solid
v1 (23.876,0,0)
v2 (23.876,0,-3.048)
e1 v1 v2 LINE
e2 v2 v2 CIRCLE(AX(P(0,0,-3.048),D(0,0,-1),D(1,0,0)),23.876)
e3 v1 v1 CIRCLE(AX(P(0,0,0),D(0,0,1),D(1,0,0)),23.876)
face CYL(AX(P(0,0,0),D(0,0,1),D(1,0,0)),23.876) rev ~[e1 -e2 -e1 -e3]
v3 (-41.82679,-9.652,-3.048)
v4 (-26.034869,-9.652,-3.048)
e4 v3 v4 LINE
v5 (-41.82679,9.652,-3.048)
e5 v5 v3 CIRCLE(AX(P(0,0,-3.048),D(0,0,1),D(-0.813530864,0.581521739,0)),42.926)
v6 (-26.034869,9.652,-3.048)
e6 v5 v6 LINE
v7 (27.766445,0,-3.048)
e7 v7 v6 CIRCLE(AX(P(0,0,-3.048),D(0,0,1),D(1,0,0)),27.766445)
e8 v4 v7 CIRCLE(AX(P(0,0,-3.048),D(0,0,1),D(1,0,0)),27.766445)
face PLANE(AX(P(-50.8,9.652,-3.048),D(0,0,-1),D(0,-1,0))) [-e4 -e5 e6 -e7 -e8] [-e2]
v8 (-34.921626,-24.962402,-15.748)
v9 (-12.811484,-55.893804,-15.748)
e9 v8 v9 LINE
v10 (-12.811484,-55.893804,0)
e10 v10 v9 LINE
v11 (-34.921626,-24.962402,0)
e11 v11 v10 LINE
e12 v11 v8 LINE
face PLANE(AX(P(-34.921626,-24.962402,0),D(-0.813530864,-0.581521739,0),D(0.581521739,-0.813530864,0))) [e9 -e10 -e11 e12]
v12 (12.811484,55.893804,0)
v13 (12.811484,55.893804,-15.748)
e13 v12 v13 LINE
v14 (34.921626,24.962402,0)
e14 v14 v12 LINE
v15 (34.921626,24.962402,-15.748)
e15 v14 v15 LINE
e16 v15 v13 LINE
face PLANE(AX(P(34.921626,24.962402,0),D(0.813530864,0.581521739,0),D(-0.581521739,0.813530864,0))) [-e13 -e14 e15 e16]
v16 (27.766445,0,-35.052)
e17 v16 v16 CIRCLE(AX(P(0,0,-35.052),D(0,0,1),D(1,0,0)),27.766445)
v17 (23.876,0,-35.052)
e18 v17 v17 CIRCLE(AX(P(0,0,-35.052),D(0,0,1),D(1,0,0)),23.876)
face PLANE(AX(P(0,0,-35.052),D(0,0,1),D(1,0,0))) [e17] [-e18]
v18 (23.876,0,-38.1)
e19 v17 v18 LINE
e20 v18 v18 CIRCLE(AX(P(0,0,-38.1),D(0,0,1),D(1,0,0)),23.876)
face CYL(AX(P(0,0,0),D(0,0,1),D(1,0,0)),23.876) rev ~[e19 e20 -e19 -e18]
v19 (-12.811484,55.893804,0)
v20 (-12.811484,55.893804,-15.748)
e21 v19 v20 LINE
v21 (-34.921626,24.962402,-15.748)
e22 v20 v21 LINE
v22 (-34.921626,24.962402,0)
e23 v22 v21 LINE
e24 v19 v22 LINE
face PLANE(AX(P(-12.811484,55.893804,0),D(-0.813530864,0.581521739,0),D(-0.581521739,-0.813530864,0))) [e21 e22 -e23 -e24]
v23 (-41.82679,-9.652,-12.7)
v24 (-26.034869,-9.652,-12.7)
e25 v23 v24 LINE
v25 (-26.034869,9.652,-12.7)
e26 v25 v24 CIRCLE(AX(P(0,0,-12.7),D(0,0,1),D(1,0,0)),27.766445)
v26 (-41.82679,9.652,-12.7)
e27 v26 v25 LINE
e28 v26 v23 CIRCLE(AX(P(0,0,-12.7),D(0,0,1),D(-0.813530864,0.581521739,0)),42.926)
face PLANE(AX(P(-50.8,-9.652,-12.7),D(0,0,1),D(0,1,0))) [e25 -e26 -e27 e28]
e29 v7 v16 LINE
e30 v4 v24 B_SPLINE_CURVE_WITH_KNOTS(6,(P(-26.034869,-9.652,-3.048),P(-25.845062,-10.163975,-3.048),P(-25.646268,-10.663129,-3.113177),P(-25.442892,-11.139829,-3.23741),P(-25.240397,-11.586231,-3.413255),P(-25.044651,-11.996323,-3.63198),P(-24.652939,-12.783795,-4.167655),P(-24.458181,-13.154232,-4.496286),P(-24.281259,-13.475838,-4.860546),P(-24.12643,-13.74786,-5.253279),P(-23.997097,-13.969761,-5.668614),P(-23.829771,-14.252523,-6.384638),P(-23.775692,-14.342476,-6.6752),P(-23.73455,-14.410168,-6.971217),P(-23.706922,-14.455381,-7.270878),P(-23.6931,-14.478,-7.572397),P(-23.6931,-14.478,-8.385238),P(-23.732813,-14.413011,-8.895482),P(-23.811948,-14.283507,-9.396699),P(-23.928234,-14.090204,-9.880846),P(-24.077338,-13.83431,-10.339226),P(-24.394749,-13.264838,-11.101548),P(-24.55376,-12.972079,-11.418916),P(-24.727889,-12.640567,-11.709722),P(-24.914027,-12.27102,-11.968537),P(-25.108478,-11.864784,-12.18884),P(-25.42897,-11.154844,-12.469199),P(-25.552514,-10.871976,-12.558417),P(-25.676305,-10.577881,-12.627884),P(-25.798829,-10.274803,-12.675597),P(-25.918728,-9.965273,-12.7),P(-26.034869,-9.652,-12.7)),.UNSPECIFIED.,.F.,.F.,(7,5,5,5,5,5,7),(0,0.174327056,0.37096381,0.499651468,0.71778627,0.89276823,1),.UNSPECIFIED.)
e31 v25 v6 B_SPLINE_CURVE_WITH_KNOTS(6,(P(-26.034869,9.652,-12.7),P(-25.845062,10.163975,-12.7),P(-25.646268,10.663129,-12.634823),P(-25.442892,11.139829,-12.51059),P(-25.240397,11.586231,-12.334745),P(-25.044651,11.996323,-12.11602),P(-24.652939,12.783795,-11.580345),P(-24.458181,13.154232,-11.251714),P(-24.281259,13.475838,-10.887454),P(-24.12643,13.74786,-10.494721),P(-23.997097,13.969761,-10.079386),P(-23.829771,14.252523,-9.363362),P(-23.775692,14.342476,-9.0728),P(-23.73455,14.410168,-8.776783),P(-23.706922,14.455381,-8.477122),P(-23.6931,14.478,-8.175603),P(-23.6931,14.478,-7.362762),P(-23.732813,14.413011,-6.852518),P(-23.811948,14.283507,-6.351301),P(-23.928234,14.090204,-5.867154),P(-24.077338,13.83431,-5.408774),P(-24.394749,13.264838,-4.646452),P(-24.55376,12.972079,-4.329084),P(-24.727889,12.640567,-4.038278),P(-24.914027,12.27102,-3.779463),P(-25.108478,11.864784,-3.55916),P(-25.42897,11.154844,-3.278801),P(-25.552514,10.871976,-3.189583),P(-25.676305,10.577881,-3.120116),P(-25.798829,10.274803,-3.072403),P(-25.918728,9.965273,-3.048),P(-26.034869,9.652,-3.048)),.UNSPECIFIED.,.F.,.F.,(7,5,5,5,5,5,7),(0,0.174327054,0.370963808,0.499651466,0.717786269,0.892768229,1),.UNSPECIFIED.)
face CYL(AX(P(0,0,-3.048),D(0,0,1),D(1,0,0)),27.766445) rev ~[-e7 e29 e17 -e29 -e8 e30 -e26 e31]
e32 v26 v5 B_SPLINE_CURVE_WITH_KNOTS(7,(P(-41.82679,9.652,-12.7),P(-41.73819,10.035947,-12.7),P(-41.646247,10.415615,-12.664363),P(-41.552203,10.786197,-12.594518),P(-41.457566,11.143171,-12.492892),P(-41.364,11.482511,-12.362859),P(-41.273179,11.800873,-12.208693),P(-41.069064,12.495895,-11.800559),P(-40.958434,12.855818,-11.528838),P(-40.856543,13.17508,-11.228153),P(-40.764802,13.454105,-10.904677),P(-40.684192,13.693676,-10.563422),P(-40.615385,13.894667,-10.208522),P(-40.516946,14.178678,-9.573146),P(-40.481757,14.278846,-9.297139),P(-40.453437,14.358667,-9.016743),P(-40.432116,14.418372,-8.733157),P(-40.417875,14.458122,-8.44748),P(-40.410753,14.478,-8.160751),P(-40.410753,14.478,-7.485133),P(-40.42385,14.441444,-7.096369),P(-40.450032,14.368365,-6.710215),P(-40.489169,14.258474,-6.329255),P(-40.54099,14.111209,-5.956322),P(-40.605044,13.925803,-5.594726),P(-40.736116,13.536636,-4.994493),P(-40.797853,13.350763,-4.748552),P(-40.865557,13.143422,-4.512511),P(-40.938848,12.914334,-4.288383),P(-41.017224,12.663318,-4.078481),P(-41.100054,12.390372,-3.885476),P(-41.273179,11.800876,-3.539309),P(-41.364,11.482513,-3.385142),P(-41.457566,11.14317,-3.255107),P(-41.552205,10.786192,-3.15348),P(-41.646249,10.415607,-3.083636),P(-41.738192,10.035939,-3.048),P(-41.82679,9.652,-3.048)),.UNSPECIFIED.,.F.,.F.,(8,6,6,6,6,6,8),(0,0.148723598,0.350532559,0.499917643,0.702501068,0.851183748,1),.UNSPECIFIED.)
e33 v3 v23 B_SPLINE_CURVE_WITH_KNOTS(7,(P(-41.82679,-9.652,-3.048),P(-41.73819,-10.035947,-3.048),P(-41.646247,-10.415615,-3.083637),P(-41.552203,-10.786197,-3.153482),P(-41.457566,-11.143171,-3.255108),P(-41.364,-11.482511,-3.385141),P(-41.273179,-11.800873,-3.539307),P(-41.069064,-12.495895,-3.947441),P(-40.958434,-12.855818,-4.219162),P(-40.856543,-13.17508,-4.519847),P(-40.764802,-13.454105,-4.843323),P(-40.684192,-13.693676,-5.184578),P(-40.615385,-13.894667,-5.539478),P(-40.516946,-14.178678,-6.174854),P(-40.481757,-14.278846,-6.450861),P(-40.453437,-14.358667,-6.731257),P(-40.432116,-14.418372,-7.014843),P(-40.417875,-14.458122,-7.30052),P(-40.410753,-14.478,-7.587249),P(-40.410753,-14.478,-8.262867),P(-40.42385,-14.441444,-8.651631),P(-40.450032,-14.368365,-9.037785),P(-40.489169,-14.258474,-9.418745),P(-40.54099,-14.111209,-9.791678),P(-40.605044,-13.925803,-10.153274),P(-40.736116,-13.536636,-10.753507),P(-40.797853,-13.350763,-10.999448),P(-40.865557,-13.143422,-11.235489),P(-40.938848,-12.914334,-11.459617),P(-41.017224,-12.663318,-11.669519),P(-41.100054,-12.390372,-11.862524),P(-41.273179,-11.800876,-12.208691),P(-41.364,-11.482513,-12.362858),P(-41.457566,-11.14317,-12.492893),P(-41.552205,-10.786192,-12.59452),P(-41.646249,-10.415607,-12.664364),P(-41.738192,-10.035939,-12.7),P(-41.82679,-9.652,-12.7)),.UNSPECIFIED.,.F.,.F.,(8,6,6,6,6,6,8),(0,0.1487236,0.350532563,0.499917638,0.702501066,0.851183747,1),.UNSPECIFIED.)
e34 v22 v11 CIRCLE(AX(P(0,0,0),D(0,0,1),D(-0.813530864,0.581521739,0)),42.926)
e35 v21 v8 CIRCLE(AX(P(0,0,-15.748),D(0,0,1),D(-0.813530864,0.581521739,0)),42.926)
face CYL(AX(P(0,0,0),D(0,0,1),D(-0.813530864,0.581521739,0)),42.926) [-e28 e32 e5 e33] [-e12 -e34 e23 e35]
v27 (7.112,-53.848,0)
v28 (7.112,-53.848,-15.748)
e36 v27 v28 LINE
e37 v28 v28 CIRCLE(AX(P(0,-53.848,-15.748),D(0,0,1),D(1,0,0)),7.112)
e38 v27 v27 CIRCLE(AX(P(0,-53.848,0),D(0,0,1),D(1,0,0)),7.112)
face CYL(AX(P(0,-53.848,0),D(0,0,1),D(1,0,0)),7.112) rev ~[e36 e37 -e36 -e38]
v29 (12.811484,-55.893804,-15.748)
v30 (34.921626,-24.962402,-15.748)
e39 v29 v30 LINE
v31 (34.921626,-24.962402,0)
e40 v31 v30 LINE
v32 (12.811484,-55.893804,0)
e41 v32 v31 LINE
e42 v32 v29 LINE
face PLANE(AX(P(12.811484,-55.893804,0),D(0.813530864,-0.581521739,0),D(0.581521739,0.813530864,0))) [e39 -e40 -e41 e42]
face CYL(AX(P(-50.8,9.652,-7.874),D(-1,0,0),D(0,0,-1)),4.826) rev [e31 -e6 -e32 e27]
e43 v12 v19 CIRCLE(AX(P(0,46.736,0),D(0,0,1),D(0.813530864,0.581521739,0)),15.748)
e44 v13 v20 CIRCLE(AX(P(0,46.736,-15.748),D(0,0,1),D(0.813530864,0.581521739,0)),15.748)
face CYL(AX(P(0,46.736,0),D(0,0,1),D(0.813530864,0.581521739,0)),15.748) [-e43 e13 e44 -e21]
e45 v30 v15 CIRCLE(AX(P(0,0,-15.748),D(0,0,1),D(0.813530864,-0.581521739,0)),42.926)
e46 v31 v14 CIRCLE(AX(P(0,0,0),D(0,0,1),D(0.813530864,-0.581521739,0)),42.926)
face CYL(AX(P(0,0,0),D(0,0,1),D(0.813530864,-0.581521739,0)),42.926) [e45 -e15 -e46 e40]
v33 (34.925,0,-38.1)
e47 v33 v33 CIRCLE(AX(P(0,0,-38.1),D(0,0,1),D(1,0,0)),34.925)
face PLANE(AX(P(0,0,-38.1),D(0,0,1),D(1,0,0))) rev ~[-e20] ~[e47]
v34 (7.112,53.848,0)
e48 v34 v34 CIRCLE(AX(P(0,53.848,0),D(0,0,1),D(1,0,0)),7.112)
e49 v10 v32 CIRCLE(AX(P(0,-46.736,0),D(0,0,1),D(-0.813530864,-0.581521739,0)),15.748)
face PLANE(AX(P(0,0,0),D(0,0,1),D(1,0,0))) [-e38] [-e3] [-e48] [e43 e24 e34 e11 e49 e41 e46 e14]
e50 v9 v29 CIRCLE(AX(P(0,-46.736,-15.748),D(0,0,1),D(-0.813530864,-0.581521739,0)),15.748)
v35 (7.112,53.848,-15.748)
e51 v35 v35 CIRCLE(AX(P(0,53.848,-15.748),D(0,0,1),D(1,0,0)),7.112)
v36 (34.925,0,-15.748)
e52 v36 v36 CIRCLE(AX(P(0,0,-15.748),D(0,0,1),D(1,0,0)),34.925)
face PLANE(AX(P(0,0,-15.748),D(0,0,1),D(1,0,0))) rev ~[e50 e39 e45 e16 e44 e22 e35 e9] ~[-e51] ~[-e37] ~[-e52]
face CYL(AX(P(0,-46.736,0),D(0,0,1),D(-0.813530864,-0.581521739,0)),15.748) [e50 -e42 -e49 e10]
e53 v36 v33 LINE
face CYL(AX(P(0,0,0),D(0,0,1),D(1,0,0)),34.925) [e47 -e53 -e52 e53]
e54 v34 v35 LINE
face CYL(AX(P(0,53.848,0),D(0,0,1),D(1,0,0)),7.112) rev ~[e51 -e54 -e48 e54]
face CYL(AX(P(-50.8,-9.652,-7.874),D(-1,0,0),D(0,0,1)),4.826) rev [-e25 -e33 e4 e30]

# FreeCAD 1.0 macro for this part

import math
import FreeCAD as App
import Part
import Sketcher
Q = App.Units.Quantity

doc = App.newDocument("Part")
body = doc.addObject("PartDesign::Body", "Body")

sketch1 = body.newObject("Sketcher::SketchObject", "Sketch")
sketch1.AttachmentSupport = (doc.getObject("XY_Plane"), [""])
sketch1.MapMode = "FlatFace"
sketch1.addGeometry([
    Part.Circle(App.Vector(0, 0, 0), App.Vector(0, 0, 1), 35),
    Part.Circle(App.Vector(0, 0, 0), App.Vector(0, 0, 1), 24),
], False)
sketch1.addConstraint([
    Sketcher.Constraint("Coincident", 0, 3, -1, 1),
    Sketcher.Constraint("Coincident", 1, 3, -1, 1),
    Sketcher.Constraint("Diameter", 0, Q("2.75 in")),
    Sketcher.Constraint("Diameter", 1, Q("1.88 in")),
])
pad1 = body.newObject("PartDesign::Pad", "Pad")
pad1.Profile = sketch1
pad1.Length = Q("1.5 in")
pad1.Reversed = True

sketch2 = body.newObject("Sketcher::SketchObject", "Sketch001")
sketch2.AttachmentSupport = (doc.getObject("XY_Plane"), [""])
sketch2.MapMode = "FlatFace"
sketch2.AttachmentOffset = App.Placement(App.Vector(0, 0, -0.12 * 25.4), App.Rotation())
sketch2.addGeometry([
    Part.Circle(App.Vector(0, 0, 0), App.Vector(0, 0, 1), 28),
    Part.Circle(App.Vector(0, 0, 0), App.Vector(0, 0, 1), 24),
], False)
sketch2.addConstraint([
    Sketcher.Constraint("Coincident", 0, 3, -1, 1),
    Sketcher.Constraint("Coincident", 1, 3, -1, 1),
    Sketcher.Constraint("Diameter", 1, Q("1.88 in")),
    Sketcher.Constraint("Diameter", 0, Q("55.532891 mm")),
])
pocket1 = body.newObject("PartDesign::Pocket", "Pocket")
pocket1.Profile = sketch2
pocket1.Length = Q("1.26 in")

sketch3 = body.newObject("Sketcher::SketchObject", "Sketch002")
sketch3.AttachmentSupport = (doc.getObject("XY_Plane"), [""])
sketch3.MapMode = "FlatFace"
sketch3.addGeometry([
    Part.ArcOfCircle(Part.Circle(App.Vector(0, 47, 0), App.Vector(0, 0, 1), 16), math.radians(36), math.radians(144)),
    Part.LineSegment(App.Vector(-13, 56, 0), App.Vector(-35, 25, 0)),
    Part.ArcOfCircle(Part.Circle(App.Vector(0, 0, 0), App.Vector(0, 0, 1), 43), math.radians(144), math.radians(216)),
    Part.LineSegment(App.Vector(-35, -25, 0), App.Vector(-13, -56, 0)),
    Part.ArcOfCircle(Part.Circle(App.Vector(0, -47, 0), App.Vector(0, 0, 1), 16), math.radians(-144), math.radians(-36)),
    Part.LineSegment(App.Vector(13, -56, 0), App.Vector(35, -25, 0)),
    Part.ArcOfCircle(Part.Circle(App.Vector(0, 0, 0), App.Vector(0, 0, 1), 43), math.radians(-36), math.radians(36)),
    Part.LineSegment(App.Vector(35, 25, 0), App.Vector(13, 56, 0)),
    Part.Circle(App.Vector(0, -54, 0), App.Vector(0, 0, 1), 7),
    Part.Circle(App.Vector(0, 0, 0), App.Vector(0, 0, 1), 35),
    Part.Circle(App.Vector(0, 54, 0), App.Vector(0, 0, 1), 7),
], False)
sketch3.addConstraint([
    Sketcher.Constraint("Tangent", 0, 2, 1, 1),
    Sketcher.Constraint("Tangent", 1, 2, 2, 1),
    Sketcher.Constraint("Tangent", 2, 2, 3, 1),
    Sketcher.Constraint("Tangent", 3, 2, 4, 1),
    Sketcher.Constraint("Tangent", 4, 2, 5, 1),
    Sketcher.Constraint("Tangent", 5, 2, 6, 1),
    Sketcher.Constraint("Tangent", 6, 2, 7, 1),
    Sketcher.Constraint("Tangent", 7, 2, 0, 1),
    Sketcher.Constraint("Coincident", 2, 3, -1, 1),
    Sketcher.Constraint("Coincident", 6, 3, -1, 1),
    Sketcher.Constraint("Coincident", 9, 3, -1, 1),
    Sketcher.Constraint("Equal", 0, 4),
    Sketcher.Constraint("Equal", 2, 6),
    Sketcher.Constraint("Equal", 8, 10),
    Sketcher.Constraint("Symmetric", 0, 3, 4, 3, -1, 1),
    Sketcher.Constraint("Symmetric", 8, 3, 10, 3, -1, 1),
    Sketcher.Constraint("PointOnObject", 0, 3, -2),
    Sketcher.Constraint("PointOnObject", 8, 3, -2),
    Sketcher.Constraint("Diameter", 8, Q("0.56 in")),
    Sketcher.Constraint("Diameter", 9, Q("2.75 in")),
    Sketcher.Constraint("Radius", 0, Q("0.62 in")),
    Sketcher.Constraint("Radius", 2, Q("1.69 in")),
    Sketcher.Constraint("DistanceY", -1, 1, 0, 3, Q("1.84 in")),
    Sketcher.Constraint("DistanceY", 8, 3, -1, 1, Q("2.12 in")),
])
pad2 = body.newObject("PartDesign::Pad", "Pad001")
pad2.Profile = sketch3
pad2.Length = Q("0.62 in")
pad2.Reversed = True

sketch4 = body.newObject("Sketcher::SketchObject", "Sketch003")
sketch4.AttachmentSupport = (doc.getObject("YZ_Plane"), [""])
sketch4.MapMode = "FlatFace"
sketch4.AttachmentOffset = App.Placement(App.Vector(0, 0, -2 * 25.4), App.Rotation())
sketch4.addGeometry([
    Part.LineSegment(App.Vector(9.7, -3, 0), App.Vector(-9.7, -3, 0)),
    Part.ArcOfCircle(Part.Circle(App.Vector(-9.7, -7.9, 0), App.Vector(0, 0, 1), 4.8), math.radians(90), math.radians(270)),
    Part.LineSegment(App.Vector(-9.7, -12.7, 0), App.Vector(9.7, -12.7, 0)),
    Part.ArcOfCircle(Part.Circle(App.Vector(9.7, -7.9, 0), App.Vector(0, 0, 1), 4.8), math.radians(-90), math.radians(90)),
], False)
sketch4.addConstraint([
    Sketcher.Constraint("Tangent", 0, 2, 1, 1),
    Sketcher.Constraint("Tangent", 1, 2, 2, 1),
    Sketcher.Constraint("Tangent", 2, 2, 3, 1),
    Sketcher.Constraint("Tangent", 3, 2, 0, 1),
    Sketcher.Constraint("Horizontal", 0),
    Sketcher.Constraint("Horizontal", 2),
    Sketcher.Constraint("Radius", 1, Q("0.19 in")),
    Sketcher.Constraint("DistanceX", 0, 2, 0, 1, Q("0.76 in")),
    Sketcher.Constraint("DistanceY", 1, 2, -1, 1, Q("0.5 in")),
    Sketcher.Constraint("DistanceX", 1, 3, -1, 1, Q("0.38 in")),
])
pocket2 = body.newObject("PartDesign::Pocket", "Pocket001")
pocket2.Profile = sketch4
pocket2.Length = 28.1069
pocket2.Reversed = True

doc.recompute()
